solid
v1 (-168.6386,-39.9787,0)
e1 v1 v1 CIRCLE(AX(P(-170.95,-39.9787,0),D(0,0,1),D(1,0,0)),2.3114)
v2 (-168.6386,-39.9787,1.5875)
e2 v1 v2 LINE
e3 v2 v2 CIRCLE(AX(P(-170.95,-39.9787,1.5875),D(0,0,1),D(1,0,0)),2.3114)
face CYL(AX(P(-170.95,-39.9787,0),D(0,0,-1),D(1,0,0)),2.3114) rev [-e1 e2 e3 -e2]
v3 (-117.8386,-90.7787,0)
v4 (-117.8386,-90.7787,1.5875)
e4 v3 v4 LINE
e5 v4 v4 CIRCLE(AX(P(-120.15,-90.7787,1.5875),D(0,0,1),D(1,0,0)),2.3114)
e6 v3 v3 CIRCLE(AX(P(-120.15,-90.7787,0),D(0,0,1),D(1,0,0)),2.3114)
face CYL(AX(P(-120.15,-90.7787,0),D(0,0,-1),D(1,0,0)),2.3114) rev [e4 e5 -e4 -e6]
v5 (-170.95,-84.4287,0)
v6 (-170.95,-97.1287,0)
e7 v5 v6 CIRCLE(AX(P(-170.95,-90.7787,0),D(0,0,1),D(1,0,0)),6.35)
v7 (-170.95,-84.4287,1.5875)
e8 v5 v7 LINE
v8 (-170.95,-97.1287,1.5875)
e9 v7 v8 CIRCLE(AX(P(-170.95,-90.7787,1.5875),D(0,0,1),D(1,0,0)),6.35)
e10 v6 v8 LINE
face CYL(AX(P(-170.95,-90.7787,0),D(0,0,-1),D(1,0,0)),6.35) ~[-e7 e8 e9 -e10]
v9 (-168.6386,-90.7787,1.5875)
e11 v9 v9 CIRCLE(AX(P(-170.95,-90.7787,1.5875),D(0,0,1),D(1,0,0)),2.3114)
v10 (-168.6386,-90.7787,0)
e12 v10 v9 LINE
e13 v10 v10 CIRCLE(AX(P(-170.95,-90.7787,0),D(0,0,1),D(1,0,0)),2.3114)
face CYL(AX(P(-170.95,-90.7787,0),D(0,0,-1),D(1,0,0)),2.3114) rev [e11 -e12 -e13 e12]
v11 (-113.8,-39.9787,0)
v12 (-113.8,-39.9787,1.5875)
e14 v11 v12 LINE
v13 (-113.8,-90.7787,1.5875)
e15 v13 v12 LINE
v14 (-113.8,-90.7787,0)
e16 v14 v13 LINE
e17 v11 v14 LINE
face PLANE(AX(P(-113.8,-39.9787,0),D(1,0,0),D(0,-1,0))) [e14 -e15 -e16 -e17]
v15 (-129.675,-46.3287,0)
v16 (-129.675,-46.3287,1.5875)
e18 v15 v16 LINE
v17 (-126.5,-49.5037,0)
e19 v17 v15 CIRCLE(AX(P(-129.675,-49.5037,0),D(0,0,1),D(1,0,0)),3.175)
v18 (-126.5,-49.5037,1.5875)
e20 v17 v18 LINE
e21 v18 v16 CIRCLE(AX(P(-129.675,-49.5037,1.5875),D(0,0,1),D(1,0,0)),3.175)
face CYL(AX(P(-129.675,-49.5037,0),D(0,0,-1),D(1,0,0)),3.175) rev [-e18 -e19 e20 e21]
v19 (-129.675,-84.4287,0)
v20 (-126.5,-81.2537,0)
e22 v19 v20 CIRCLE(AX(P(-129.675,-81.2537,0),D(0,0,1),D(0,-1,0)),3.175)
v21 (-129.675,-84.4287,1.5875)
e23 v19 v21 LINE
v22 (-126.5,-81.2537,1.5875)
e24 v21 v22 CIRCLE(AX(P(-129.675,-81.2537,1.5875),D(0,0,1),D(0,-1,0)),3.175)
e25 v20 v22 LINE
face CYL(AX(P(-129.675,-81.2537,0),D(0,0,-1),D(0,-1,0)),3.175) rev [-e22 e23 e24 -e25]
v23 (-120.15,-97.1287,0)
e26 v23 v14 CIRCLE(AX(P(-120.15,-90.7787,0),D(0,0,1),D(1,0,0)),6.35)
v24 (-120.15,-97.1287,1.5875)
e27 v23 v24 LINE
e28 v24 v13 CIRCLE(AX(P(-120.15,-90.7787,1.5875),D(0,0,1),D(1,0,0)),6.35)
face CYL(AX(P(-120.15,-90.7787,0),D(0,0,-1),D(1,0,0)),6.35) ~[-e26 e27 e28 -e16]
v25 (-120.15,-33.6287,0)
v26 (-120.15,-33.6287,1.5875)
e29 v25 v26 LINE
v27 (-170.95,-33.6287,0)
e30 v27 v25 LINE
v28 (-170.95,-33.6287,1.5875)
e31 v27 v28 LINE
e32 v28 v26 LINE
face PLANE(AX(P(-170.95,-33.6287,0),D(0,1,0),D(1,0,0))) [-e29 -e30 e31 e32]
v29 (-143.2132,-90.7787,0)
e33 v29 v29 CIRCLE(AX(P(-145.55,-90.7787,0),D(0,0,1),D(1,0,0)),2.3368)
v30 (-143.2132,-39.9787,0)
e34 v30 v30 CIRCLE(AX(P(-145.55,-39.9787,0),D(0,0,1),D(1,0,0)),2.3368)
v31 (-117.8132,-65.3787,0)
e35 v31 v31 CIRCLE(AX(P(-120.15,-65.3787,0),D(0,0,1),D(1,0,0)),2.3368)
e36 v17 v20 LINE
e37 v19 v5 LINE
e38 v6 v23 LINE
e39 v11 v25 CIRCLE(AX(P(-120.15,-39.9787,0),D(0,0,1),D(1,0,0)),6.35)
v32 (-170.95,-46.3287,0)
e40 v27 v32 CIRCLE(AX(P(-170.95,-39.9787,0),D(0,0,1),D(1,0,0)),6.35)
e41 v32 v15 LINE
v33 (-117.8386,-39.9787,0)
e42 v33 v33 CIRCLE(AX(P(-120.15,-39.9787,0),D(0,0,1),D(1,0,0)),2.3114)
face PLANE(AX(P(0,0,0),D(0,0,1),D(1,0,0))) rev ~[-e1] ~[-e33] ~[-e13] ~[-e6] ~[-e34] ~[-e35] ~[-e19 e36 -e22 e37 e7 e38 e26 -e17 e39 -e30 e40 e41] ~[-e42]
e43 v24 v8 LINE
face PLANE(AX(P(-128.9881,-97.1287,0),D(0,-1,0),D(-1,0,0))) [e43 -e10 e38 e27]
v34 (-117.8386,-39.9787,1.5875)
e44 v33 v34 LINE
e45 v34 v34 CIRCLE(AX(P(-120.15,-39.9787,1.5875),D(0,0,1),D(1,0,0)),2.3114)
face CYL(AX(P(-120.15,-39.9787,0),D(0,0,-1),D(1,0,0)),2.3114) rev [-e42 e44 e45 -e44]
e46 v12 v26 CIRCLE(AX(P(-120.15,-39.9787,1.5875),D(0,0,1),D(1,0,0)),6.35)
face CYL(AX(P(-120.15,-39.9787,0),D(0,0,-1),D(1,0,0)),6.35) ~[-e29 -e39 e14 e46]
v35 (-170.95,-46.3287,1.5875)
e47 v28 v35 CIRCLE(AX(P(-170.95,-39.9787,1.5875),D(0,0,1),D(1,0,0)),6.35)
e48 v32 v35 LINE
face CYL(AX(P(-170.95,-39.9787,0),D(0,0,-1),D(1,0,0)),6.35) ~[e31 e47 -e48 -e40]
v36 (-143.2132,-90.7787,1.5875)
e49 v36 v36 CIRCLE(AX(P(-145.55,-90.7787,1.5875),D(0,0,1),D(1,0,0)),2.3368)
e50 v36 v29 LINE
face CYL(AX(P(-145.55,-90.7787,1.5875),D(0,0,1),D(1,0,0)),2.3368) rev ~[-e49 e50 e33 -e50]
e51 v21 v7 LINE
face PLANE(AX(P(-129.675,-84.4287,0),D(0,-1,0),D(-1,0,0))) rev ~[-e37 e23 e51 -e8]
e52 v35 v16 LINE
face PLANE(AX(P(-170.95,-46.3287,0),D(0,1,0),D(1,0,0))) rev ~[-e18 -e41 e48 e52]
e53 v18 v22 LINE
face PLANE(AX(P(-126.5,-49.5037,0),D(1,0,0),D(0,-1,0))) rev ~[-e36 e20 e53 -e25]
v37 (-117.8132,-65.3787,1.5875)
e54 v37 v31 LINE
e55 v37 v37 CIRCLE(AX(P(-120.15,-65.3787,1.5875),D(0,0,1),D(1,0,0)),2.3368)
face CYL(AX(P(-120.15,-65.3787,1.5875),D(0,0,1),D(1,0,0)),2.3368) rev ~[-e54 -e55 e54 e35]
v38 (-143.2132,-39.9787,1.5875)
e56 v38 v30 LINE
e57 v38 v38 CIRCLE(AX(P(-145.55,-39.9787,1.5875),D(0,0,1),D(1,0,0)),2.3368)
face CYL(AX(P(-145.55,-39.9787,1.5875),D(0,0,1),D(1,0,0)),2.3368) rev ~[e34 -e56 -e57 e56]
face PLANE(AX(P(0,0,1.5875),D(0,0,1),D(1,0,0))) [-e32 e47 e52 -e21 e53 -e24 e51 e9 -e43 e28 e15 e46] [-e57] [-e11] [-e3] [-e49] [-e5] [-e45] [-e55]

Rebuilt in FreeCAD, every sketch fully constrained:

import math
import FreeCAD as App
import Part
import Sketcher
from FreeCAD import Vector
Q = App.Units.Quantity

doc = App.newDocument("Part")
body = doc.addObject("PartDesign::Body", "Body")

sketch1 = body.newObject("Sketcher::SketchObject", "Sketch")
sketch1.AttachmentSupport = (doc.getObject("XY_Plane"), [""])
sketch1.MapMode = "FlatFace"
sketch1.addGeometry([
    Part.LineSegment(Vector(-170.9, -97.1, 0), Vector(-120.2, -97.1, 0)),
    Part.ArcOfCircle(Part.Circle(Vector(-120.2, -90.8, 0), Vector(0, 0, 1), 6.3), math.radians(-90), math.radians(0)),
    Part.LineSegment(Vector(-113.8, -90.8, 0), Vector(-113.8, -40, 0)),
    Part.ArcOfCircle(Part.Circle(Vector(-120.2, -40, 0), Vector(0, 0, 1), 6.3), math.radians(0), math.radians(90)),
    Part.LineSegment(Vector(-120.2, -33.6, 0), Vector(-170.9, -33.6, 0)),
    Part.ArcOfCircle(Part.Circle(Vector(-170.9, -40, 0), Vector(0, 0, 1), 6.3), math.radians(90), math.radians(270)),
    Part.LineSegment(Vector(-170.9, -46.3, 0), Vector(-129.7, -46.3, 0)),
    Part.ArcOfCircle(Part.Circle(Vector(-129.7, -49.5, 0), Vector(0, 0, 1), 3.2), math.radians(0), math.radians(90)),
    Part.LineSegment(Vector(-126.5, -49.5, 0), Vector(-126.5, -81.3, 0)),
    Part.ArcOfCircle(Part.Circle(Vector(-129.7, -81.3, 0), Vector(0, 0, 1), 3.2), math.radians(-90), math.radians(0)),
    Part.LineSegment(Vector(-129.7, -84.4, 0), Vector(-170.9, -84.4, 0)),
    Part.ArcOfCircle(Part.Circle(Vector(-170.9, -90.8, 0), Vector(0, 0, 1), 6.3), math.radians(90), math.radians(270)),
    Part.Circle(Vector(-158.2, -90.8, 0), Vector(0, 0, 1), 2.3),
    Part.Circle(Vector(-158.2, -40, 0), Vector(0, 0, 1), 2.3),
    Part.Circle(Vector(-170.9, -90.8, 0), Vector(0, 0, 1), 2.3),
    Part.Circle(Vector(-170.9, -40, 0), Vector(0, 0, 1), 2.3),
    Part.Circle(Vector(-120.2, -40, 0), Vector(0, 0, 1), 2.3),
    Part.Circle(Vector(-120.2, -90.8, 0), Vector(0, 0, 1), 2.3),
], False)
sketch1.addConstraint([
    Sketcher.Constraint("Tangent", 0, 2, 1, 1),
    Sketcher.Constraint("Tangent", 1, 2, 2, 1),
    Sketcher.Constraint("Tangent", 2, 2, 3, 1),
    Sketcher.Constraint("Tangent", 3, 2, 4, 1),
    Sketcher.Constraint("Tangent", 4, 2, 5, 1),
    Sketcher.Constraint("Tangent", 5, 2, 6, 1),
    Sketcher.Constraint("Tangent", 6, 2, 7, 2),
    Sketcher.Constraint("Tangent", 7, 1, 8, 1),
    Sketcher.Constraint("Tangent", 8, 2, 9, 2),
    Sketcher.Constraint("Tangent", 9, 1, 10, 1),
    Sketcher.Constraint("Tangent", 10, 2, 11, 1),
    Sketcher.Constraint("Tangent", 11, 2, 0, 1),
    Sketcher.Constraint("Horizontal", 0),
    Sketcher.Constraint("Vertical", 2),
    Sketcher.Constraint("Horizontal", 4),
    Sketcher.Constraint("Horizontal", 6),
    Sketcher.Constraint("Vertical", 8),
    Sketcher.Constraint("Horizontal", 10),
    Sketcher.Constraint("Coincident", 14, 3, 11, 3),
    Sketcher.Constraint("Coincident", 15, 3, 5, 3),
    Sketcher.Constraint("Coincident", 16, 3, 3, 3),
    Sketcher.Constraint("Coincident", 17, 3, 1, 3),
    Sketcher.Constraint("Equal", 1, 3),
    Sketcher.Constraint("Equal", 3, 5),
    Sketcher.Constraint("Equal", 7, 9),
    Sketcher.Constraint("Equal", 5, 11),
    Sketcher.Constraint("Equal", 12, 13),
    Sketcher.Constraint("Equal", 13, 14),
    Sketcher.Constraint("Equal", 14, 15),
    Sketcher.Constraint("Equal", 15, 16),
    Sketcher.Constraint("Equal", 16, 17),
    Sketcher.Constraint("Horizontal", 11, 3, 12, 3),
    Sketcher.Constraint("Horizontal", 5, 3, 13, 3),
    Sketcher.Constraint("Vertical", 5, 3, 11, 3),
    Sketcher.Constraint("Vertical", 12, 3, 13, 3),
    Sketcher.Constraint("Equal", 4, 2),
    Sketcher.Constraint("Radius", 1, Q("0.25 in")),
    Sketcher.Constraint("Radius", 7, Q("0.125 in")),
    Sketcher.Constraint("DistanceX", 11, 3, 12, 3, Q("0.5 in")),
    Sketcher.Constraint("DistanceX", 7, 1, 2, 2, Q("0.5 in")),
    Sketcher.Constraint("DistanceX", 0, 1, 0, 2, Q("2 in")),
    Sketcher.Constraint("Diameter", 12, Q("0.182 in")),
    Sketcher.Constraint("DistanceX", 1, 3, -1, 1, 120.15),
    Sketcher.Constraint("DistanceY", 1, 3, -1, 1, 90.7787),
])
pad1 = body.newObject("PartDesign::Pad", "Pad")
pad1.Profile = sketch1
pad1.Length = Q("0.0625 in")

sketch2 = body.newObject("Sketcher::SketchObject", "Sketch001")
sketch2.AttachmentSupport = (doc.getObject("XY_Plane"), [""])
sketch2.MapMode = "FlatFace"
sketch2.AttachmentOffset = App.Placement(Vector(0, 0, 0.0625 * 25.4), App.Rotation())
sketch2.addGeometry([
    Part.Circle(Vector(-145.6, -90.8, 0), Vector(0, 0, 1), 2.3),
    Part.Circle(Vector(-145.6, -40, 0), Vector(0, 0, 1), 2.3),
    Part.Circle(Vector(-120.2, -65.4, 0), Vector(0, 0, 1), 2.3),
], False)
sketch2.addConstraint([
    Sketcher.Constraint("Equal", 0, 1),
    Sketcher.Constraint("Equal", 1, 2),
    Sketcher.Constraint("Vertical", 0, 3, 1, 3),
    Sketcher.Constraint("Diameter", 0, Q("0.184 in")),
    Sketcher.Constraint("DistanceX", 1, 3, 2, 3, Q("1 in")),
    Sketcher.Constraint("DistanceY", 2, 3, 1, 3, Q("1 in")),
    Sketcher.Constraint("DistanceY", 0, 3, 2, 3, Q("1 in")),
    Sketcher.Constraint("DistanceX", 0, 3, -1, 1, 145.55),
    Sketcher.Constraint("DistanceY", 0, 3, -1, 1, 90.7787),
])
pocket1 = body.newObject("PartDesign::Pocket", "Pocket")
pocket1.Profile = sketch2
pocket1.Length = Q("1 in")

sketch3 = body.newObject("Sketcher::SketchObject", "Sketch002")
sketch3.AttachmentSupport = (doc.getObject("XY_Plane"), [""])
sketch3.MapMode = "FlatFace"
sketch3.AttachmentOffset = App.Placement(Vector(0, 0, 0.0625 * 25.4), App.Rotation())
sketch3.addGeometry([
    Part.Circle(Vector(-158.2, -40, 0), Vector(0, 0, 1), 2.3),
    Part.Circle(Vector(-158.2, -90.8, 0), Vector(0, 0, 1), 2.3),
], False)
sketch3.addConstraint([
    Sketcher.Constraint("Equal", 0, 1),
    Sketcher.Constraint("Vertical", 0, 3, 1, 3),
    Sketcher.Constraint("Diameter", 0, Q("0.182 in")),
    Sketcher.Constraint("DistanceY", 1, 3, 0, 3, Q("2 in")),
    Sketcher.Constraint("DistanceX", 0, 3, -1, 1, 158.25),
    Sketcher.Constraint("DistanceY", 0, 3, -1, 1, 39.9787),
])
pad2 = body.newObject("PartDesign::Pad", "Pad001")
pad2.Profile = sketch3
pad2.Length = Q("0.0625 in")
pad2.Reversed = True

doc.recompute()
